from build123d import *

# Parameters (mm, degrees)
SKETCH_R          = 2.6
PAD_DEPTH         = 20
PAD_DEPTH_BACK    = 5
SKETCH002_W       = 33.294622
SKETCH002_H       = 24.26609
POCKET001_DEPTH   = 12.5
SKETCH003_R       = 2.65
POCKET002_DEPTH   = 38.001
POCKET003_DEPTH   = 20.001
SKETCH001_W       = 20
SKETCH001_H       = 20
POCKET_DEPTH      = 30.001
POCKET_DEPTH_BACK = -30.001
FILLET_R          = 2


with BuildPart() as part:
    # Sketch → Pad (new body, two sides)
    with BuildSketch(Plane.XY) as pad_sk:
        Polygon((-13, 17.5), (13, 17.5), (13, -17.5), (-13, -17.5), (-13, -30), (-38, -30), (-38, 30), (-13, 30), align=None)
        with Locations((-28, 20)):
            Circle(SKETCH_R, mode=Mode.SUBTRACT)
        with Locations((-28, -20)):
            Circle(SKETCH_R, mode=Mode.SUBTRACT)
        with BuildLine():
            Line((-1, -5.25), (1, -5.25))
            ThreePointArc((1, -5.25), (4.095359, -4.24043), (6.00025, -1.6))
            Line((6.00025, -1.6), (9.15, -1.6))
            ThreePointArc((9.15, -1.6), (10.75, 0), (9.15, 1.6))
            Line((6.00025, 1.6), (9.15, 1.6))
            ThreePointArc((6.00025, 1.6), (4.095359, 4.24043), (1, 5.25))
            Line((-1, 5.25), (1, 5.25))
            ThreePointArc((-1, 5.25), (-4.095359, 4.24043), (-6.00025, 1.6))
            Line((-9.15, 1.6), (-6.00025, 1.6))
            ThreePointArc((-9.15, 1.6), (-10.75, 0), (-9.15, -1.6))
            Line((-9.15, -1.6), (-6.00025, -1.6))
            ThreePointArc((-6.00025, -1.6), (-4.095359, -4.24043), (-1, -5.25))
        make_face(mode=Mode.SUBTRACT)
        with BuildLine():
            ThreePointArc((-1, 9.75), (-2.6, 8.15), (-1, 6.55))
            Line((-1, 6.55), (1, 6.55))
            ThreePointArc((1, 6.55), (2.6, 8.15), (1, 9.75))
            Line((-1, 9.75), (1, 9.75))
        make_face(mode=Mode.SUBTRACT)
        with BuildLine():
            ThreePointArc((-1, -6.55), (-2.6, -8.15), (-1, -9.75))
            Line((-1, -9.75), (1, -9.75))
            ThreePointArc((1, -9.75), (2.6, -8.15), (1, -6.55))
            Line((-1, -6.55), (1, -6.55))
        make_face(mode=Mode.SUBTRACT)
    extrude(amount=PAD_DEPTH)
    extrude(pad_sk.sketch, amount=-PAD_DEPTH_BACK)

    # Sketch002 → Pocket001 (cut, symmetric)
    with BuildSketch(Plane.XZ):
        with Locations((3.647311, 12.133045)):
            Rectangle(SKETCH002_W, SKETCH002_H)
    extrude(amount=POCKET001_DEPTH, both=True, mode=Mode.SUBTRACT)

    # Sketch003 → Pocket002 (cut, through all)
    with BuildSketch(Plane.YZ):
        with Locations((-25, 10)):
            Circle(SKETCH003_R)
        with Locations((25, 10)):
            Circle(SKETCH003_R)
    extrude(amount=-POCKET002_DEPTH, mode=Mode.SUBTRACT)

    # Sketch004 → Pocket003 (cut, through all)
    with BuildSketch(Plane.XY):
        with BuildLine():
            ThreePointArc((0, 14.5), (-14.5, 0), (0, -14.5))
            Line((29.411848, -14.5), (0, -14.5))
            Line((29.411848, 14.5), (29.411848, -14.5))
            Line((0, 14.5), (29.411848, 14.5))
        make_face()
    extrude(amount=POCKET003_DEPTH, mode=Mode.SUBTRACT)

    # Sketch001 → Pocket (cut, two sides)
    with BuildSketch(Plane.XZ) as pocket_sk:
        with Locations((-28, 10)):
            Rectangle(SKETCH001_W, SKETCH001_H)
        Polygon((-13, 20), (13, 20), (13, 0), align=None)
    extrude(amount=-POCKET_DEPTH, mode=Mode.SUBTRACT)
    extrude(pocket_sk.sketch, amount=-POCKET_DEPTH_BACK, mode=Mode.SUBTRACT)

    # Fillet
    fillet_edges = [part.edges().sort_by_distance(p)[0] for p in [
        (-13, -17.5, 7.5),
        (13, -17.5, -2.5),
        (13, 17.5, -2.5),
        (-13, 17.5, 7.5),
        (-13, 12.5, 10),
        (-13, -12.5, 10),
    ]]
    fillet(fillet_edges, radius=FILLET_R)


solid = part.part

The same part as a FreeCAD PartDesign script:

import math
import FreeCAD as App
import Part
import Sketcher

V = App.Vector


def edges_at(feature, points):
    """Names of the edges that pass closest to the given points."""
    edges = feature.Shape.Edges
    near = lambda p: min(range(len(edges)), key=lambda i: edges[i].distToShape(Part.Vertex(*p))[0])
    return sorted({f"Edge{near(p) + 1}" for p in points})


def add_polygon(sketch, points):
    """Adds a closed chain of lines whose ends are joined by coincident constraints."""
    first, n = sketch.GeometryCount, len(points)
    for a, b in zip(points, points[1:] + points[:1]):
        sketch.addGeometry(Part.LineSegment(App.Vector(*a, 0), App.Vector(*b, 0)), False)
    for i in range(n):
        sketch.addConstraint(Sketcher.Constraint("Coincident", first + i, 2, first + (i + 1) % n, 1))

doc = App.newDocument("Part")
body = doc.addObject("PartDesign::Body", "Body")

# Sketch on XY plane
sketch1 = body.newObject("Sketcher::SketchObject", "Sketch")
sketch1.AttachmentSupport = (doc.getObject("XY_Plane"), [""])
sketch1.MapMode = "FlatFace"
add_polygon(sketch1, [(13, 17.5), (-13, 17.5), (-13, 30), (-38, 30), (-38, -30), (-13, -30), (-13, -17.5), (13, -17.5)])  # lines 0-7
sketch1.addGeometry(Part.LineSegment(V(-1, -6.5, 0), V(1, -6.5, 0)), False)  # 8
sketch1.addGeometry(Part.ArcOfCircle(Part.Circle(V(1, -8.2, 0), V(0, 0, 1), 1.6), math.radians(-90), math.radians(90)), False)  # 9
sketch1.addGeometry(Part.LineSegment(V(1, -9.8, 0), V(-1, -9.8, 0)), False)  # 10
sketch1.addGeometry(Part.ArcOfCircle(Part.Circle(V(-1, -8.2, 0), V(0, 0, 1), 1.6), math.radians(90), math.radians(270)), False)  # 11
sketch1.addGeometry(Part.Circle(V(-28, -20, 0), V(0, 0, 1), 2.6), False)  # 12
sketch1.addGeometry(Part.ArcOfCircle(Part.Circle(V(-1, 0, 0), V(0, 0, 1), 5.3), math.radians(-162), math.radians(-90)), False)  # 13
sketch1.addGeometry(Part.LineSegment(V(-6, -1.6, 0), V(-9.2, -1.6, 0)), False)  # 14
sketch1.addGeometry(Part.ArcOfCircle(Part.Circle(V(-9.2, 0, 0), V(0, 0, 1), 1.6), math.radians(90), math.radians(270)), False)  # 15
sketch1.addGeometry(Part.LineSegment(V(-9.2, 1.6, 0), V(-6, 1.6, 0)), False)  # 16
sketch1.addGeometry(Part.ArcOfCircle(Part.Circle(V(-1, 0, 0), V(0, 0, 1), 5.3), math.radians(90), math.radians(162)), False)  # 17
sketch1.addGeometry(Part.LineSegment(V(-1, 5.2, 0), V(1, 5.2, 0)), False)  # 18
sketch1.addGeometry(Part.ArcOfCircle(Part.Circle(V(1, 0, 0), V(0, 0, 1), 5.3), math.radians(18), math.radians(90)), False)  # 19
sketch1.addGeometry(Part.LineSegment(V(6, 1.6, 0), V(9.2, 1.6, 0)), False)  # 20
sketch1.addGeometry(Part.ArcOfCircle(Part.Circle(V(9.2, 0, 0), V(0, 0, 1), 1.6), math.radians(-90), math.radians(90)), False)  # 21
sketch1.addGeometry(Part.LineSegment(V(9.2, -1.6, 0), V(6, -1.6, 0)), False)  # 22
sketch1.addGeometry(Part.ArcOfCircle(Part.Circle(V(1, 0, 0), V(0, 0, 1), 5.3), math.radians(-90), math.radians(-18)), False)  # 23
sketch1.addGeometry(Part.LineSegment(V(1, -5.2, 0), V(-1, -5.2, 0)), False)  # 24
sketch1.addGeometry(Part.LineSegment(V(-1, 9.8, 0), V(1, 9.8, 0)), False)  # 25
sketch1.addGeometry(Part.ArcOfCircle(Part.Circle(V(1, 8.2, 0), V(0, 0, 1), 1.6), math.radians(-90), math.radians(90)), False)  # 26
sketch1.addGeometry(Part.LineSegment(V(1, 6.5, 0), V(-1, 6.5, 0)), False)  # 27
sketch1.addGeometry(Part.ArcOfCircle(Part.Circle(V(-1, 8.2, 0), V(0, 0, 1), 1.6), math.radians(90), math.radians(270)), False)  # 28
sketch1.addGeometry(Part.Circle(V(-28, 20, 0), V(0, 0, 1), 2.6), False)  # 29
sketch1.addConstraint([
    Sketcher.Constraint("Tangent", 8, 2, 9, 2),
    Sketcher.Constraint("Tangent", 9, 1, 10, 1),
    Sketcher.Constraint("Tangent", 10, 2, 11, 2),
    Sketcher.Constraint("Tangent", 11, 1, 8, 1),
    Sketcher.Constraint("Coincident", 13, 1, 14, 1),
    Sketcher.Constraint("Tangent", 14, 2, 15, 2),
    Sketcher.Constraint("Tangent", 15, 1, 16, 1),
    Sketcher.Constraint("Coincident", 16, 2, 17, 2),
    Sketcher.Constraint("Tangent", 17, 1, 18, 1),
    Sketcher.Constraint("Tangent", 18, 2, 19, 2),
    Sketcher.Constraint("Coincident", 19, 1, 20, 1),
    Sketcher.Constraint("Tangent", 20, 2, 21, 2),
    Sketcher.Constraint("Tangent", 21, 1, 22, 1),
    Sketcher.Constraint("Coincident", 22, 2, 23, 2),
    Sketcher.Constraint("Tangent", 23, 1, 24, 1),
    Sketcher.Constraint("Tangent", 24, 2, 13, 2),
    Sketcher.Constraint("Tangent", 25, 2, 26, 2),
    Sketcher.Constraint("Tangent", 26, 1, 27, 1),
    Sketcher.Constraint("Tangent", 27, 2, 28, 2),
    Sketcher.Constraint("Tangent", 28, 1, 25, 1),
    Sketcher.Constraint("Horizontal", 0),
    Sketcher.Constraint("Vertical", 1),
    Sketcher.Constraint("Horizontal", 2),
    Sketcher.Constraint("Vertical", 3),
    Sketcher.Constraint("Horizontal", 4),
    Sketcher.Constraint("Vertical", 5),
    Sketcher.Constraint("Horizontal", 6),
    Sketcher.Constraint("Vertical", 7),
    Sketcher.Constraint("Horizontal", 8),
    Sketcher.Constraint("Horizontal", 10),
    Sketcher.Constraint("Horizontal", 14),
    Sketcher.Constraint("Horizontal", 16),
    Sketcher.Constraint("Horizontal", 18),
    Sketcher.Constraint("Horizontal", 20),
    Sketcher.Constraint("Horizontal", 22),
    Sketcher.Constraint("Horizontal", 24),
    Sketcher.Constraint("Horizontal", 25),
    Sketcher.Constraint("Horizontal", 27),
    Sketcher.Constraint("Coincident", 17, 3, 13, 3),
    Sketcher.Constraint("Coincident", 23, 3, 19, 3),
    Sketcher.Constraint("Equal", 11, 15),
    Sketcher.Constraint("Equal", 13, 17),
    Sketcher.Constraint("Equal", 17, 19),
    Sketcher.Constraint("Equal", 15, 21),
    Sketcher.Constraint("Equal", 21, 26),
    Sketcher.Constraint("Equal", 12, 29),
    Sketcher.Constraint("Symmetric", 13, 3, 19, 3, -1, 1),
    Sketcher.Constraint("Symmetric", 15, 3, 21, 3, -1, 1),
    Sketcher.Constraint("Symmetric", 11, 3, 26, 3, -1, 1),
    Sketcher.Constraint("Symmetric", 0, 2, 6, 2, -1, 1),
    Sketcher.Constraint("Symmetric", 12, 3, 29, 3, -1),
    Sketcher.Constraint("Symmetric", 1, 2, 4, 2, -1),
    Sketcher.Constraint("PointOnObject", 15, 3, -1),
    Sketcher.Constraint("Vertical", 11, 3, 13, 3),
    Sketcher.Constraint("Vertical", 9, 3, 19, 3),
    Sketcher.Constraint("Vertical", 17, 3, 28, 3),
    Sketcher.Constraint("Diameter", 12, 5.2),
    Sketcher.Constraint("Radius", 9, 1.6),
    Sketcher.Constraint("DistanceX", 0, 2, 0, 1, 26.0),
    Sketcher.Constraint("DistanceX", 2, 2, 2, 1, 25.0),
    Sketcher.Constraint("DistanceX", 8, 1, 8, 2, 2.0),
    Sketcher.Constraint("DistanceY", 3, 2, 3, 1, 60.0),
    Sketcher.Constraint("DistanceY", 7, 1, 7, 2, 35.0),
    Sketcher.Constraint("DistanceX", 12, 3, -1, 1, 28.0),
    Sketcher.Constraint("DistanceY", 12, 3, -1, 1, 20.0),
    Sketcher.Constraint("DistanceY", 17, 1, 28, 3, 2.9),
    Sketcher.Constraint("DistanceY", 9, 3, -1, 1, 8.15),
    Sketcher.Constraint("DistanceX", 15, 3, -1, 1, 9.15),
])
pad1 = body.newObject("PartDesign::Pad", "Pad")
pad1.Profile = sketch1
pad1.Type = "TwoLengths"
pad1.Length = 20
pad1.Length2 = 5

# Sketch on XZ plane
sketch2 = body.newObject("Sketcher::SketchObject", "Sketch001")
sketch2.AttachmentSupport = (doc.getObject("XZ_Plane"), [""])
sketch2.MapMode = "FlatFace"
add_polygon(sketch2, [(-13, 24), (-13, 0), (20, 0), (20, 24)])  # lines 0-3
sketch2.addConstraint([
    Sketcher.Constraint("Vertical", 0),
    Sketcher.Constraint("Horizontal", 1),
    Sketcher.Constraint("Vertical", 2),
    Sketcher.Constraint("Horizontal", 3),
    Sketcher.Constraint("PointOnObject", 0, 2, -1),
    Sketcher.Constraint("DistanceX", 0, 2, -1, 1, 13.0),
    Sketcher.Constraint("DistanceY", 0, 2, 0, 1, 24.26609),
    Sketcher.Constraint("DistanceX", 1, 1, 1, 2, 33.294622),
])
pocket1 = body.newObject("PartDesign::Pocket", "Pocket")
pocket1.Profile = sketch2
pocket1.Length = 25
pocket1.Midplane = True

# Sketch on YZ plane
sketch3 = body.newObject("Sketcher::SketchObject", "Sketch002")
sketch3.AttachmentSupport = (doc.getObject("YZ_Plane"), [""])
sketch3.MapMode = "FlatFace"
sketch3.addGeometry([
    Part.Circle(V(-25, 10, 0), V(0, 0, 1), 2.6),
    Part.Circle(V(25, 10, 0), V(0, 0, 1), 2.6),
], False)
sketch3.addConstraint([
    Sketcher.Constraint("Equal", 0, 1),
    Sketcher.Constraint("Symmetric", 0, 3, 1, 3, -2),
    Sketcher.Constraint("Diameter", 0, 5.3),
    Sketcher.Constraint("DistanceX", 0, 3, -1, 1, 25.0),
    Sketcher.Constraint("DistanceY", -1, 1, 0, 3, 10.0),
])
pocket2 = body.newObject("PartDesign::Pocket", "Pocket001")
pocket2.Profile = sketch3
pocket2.Type = "ThroughAll"

# Sketch on XY plane
sketch4 = body.newObject("Sketcher::SketchObject", "Sketch003")
sketch4.AttachmentSupport = (doc.getObject("XY_Plane"), [""])
sketch4.MapMode = "FlatFace"
sketch4.addGeometry([
    Part.ArcOfCircle(Part.Circle(V(0, 0, 0), V(0, 0, 1), 14), math.radians(90), math.radians(270)),
    Part.LineSegment(V(0, -14, 0), V(29, -14, 0)),
    Part.LineSegment(V(29, -14, 0), V(29, 14, 0)),
    Part.LineSegment(V(29, 14, 0), V(0, 14, 0)),
], False)
sketch4.addConstraint([
    Sketcher.Constraint("Tangent", 0, 2, 1, 1),
    Sketcher.Constraint("Coincident", 1, 2, 2, 1),
    Sketcher.Constraint("Coincident", 2, 2, 3, 1),
    Sketcher.Constraint("Tangent", 3, 2, 0, 1),
    Sketcher.Constraint("Horizontal", 1),
    Sketcher.Constraint("Vertical", 2),
    Sketcher.Constraint("Horizontal", 3),
    Sketcher.Constraint("Coincident", 0, 3, -1, 1),
    Sketcher.Constraint("Radius", 0, 14.5),
    Sketcher.Constraint("DistanceX", 1, 1, 1, 2, 29.411848),
])
pocket3 = body.newObject("PartDesign::Pocket", "Pocket002")
pocket3.Profile = sketch4
pocket3.Type = "ThroughAll"
pocket3.Reversed = True

# Sketch on XZ plane
sketch5 = body.newObject("Sketcher::SketchObject", "Sketch004")
sketch5.AttachmentSupport = (doc.getObject("XZ_Plane"), [""])
sketch5.MapMode = "FlatFace"
add_polygon(sketch5, [(-38, 20), (-38, 0), (-18, 0), (-18, 20)])  # lines 0-3
add_polygon(sketch5, [(13, 20), (-13, 20), (13, 0)])  # lines 4-6
sketch5.addConstraint([
    Sketcher.Constraint("Vertical", 0),
    Sketcher.Constraint("Horizontal", 1),
    Sketcher.Constraint("Vertical", 2),
    Sketcher.Constraint("Horizontal", 3),
    Sketcher.Constraint("Horizontal", 4),
    Sketcher.Constraint("Vertical", 6),
    Sketcher.Constraint("PointOnObject", 0, 2, -1),
    Sketcher.Constraint("PointOnObject", 5, 2, -1),
    Sketcher.Constraint("Horizontal", 3, 2, 4, 2),
    Sketcher.Constraint("Equal", 3, 0),
    Sketcher.Constraint("DistanceX", 1, 1, 1, 2, 20.0),
    Sketcher.Constraint("DistanceX", 4, 2, 4, 1, 26.0),
    Sketcher.Constraint("DistanceX", 0, 2, -1, 1, 38.0),
    Sketcher.Constraint("DistanceX", 4, 2, -1, 1, 13.0),
])
pocket4 = body.newObject("PartDesign::Pocket", "Pocket003")
pocket4.Profile = sketch5
pocket4.Type = "ThroughAll"
pocket4.Midplane = True
doc.recompute()

fillet = body.newObject("PartDesign::Fillet", "Fillet")
fillet.Base = (pocket4, edges_at(pocket4, [
    (-13, -17.5, 7.5),
    (13, -17.5, -2.5),
    (13, 17.5, -2.5),
    (-13, 17.5, 7.5),
    (-13, 12.5, 10),
    (-13, -12.5, 10),
]))
fillet.Radius = 2

doc.recompute()
